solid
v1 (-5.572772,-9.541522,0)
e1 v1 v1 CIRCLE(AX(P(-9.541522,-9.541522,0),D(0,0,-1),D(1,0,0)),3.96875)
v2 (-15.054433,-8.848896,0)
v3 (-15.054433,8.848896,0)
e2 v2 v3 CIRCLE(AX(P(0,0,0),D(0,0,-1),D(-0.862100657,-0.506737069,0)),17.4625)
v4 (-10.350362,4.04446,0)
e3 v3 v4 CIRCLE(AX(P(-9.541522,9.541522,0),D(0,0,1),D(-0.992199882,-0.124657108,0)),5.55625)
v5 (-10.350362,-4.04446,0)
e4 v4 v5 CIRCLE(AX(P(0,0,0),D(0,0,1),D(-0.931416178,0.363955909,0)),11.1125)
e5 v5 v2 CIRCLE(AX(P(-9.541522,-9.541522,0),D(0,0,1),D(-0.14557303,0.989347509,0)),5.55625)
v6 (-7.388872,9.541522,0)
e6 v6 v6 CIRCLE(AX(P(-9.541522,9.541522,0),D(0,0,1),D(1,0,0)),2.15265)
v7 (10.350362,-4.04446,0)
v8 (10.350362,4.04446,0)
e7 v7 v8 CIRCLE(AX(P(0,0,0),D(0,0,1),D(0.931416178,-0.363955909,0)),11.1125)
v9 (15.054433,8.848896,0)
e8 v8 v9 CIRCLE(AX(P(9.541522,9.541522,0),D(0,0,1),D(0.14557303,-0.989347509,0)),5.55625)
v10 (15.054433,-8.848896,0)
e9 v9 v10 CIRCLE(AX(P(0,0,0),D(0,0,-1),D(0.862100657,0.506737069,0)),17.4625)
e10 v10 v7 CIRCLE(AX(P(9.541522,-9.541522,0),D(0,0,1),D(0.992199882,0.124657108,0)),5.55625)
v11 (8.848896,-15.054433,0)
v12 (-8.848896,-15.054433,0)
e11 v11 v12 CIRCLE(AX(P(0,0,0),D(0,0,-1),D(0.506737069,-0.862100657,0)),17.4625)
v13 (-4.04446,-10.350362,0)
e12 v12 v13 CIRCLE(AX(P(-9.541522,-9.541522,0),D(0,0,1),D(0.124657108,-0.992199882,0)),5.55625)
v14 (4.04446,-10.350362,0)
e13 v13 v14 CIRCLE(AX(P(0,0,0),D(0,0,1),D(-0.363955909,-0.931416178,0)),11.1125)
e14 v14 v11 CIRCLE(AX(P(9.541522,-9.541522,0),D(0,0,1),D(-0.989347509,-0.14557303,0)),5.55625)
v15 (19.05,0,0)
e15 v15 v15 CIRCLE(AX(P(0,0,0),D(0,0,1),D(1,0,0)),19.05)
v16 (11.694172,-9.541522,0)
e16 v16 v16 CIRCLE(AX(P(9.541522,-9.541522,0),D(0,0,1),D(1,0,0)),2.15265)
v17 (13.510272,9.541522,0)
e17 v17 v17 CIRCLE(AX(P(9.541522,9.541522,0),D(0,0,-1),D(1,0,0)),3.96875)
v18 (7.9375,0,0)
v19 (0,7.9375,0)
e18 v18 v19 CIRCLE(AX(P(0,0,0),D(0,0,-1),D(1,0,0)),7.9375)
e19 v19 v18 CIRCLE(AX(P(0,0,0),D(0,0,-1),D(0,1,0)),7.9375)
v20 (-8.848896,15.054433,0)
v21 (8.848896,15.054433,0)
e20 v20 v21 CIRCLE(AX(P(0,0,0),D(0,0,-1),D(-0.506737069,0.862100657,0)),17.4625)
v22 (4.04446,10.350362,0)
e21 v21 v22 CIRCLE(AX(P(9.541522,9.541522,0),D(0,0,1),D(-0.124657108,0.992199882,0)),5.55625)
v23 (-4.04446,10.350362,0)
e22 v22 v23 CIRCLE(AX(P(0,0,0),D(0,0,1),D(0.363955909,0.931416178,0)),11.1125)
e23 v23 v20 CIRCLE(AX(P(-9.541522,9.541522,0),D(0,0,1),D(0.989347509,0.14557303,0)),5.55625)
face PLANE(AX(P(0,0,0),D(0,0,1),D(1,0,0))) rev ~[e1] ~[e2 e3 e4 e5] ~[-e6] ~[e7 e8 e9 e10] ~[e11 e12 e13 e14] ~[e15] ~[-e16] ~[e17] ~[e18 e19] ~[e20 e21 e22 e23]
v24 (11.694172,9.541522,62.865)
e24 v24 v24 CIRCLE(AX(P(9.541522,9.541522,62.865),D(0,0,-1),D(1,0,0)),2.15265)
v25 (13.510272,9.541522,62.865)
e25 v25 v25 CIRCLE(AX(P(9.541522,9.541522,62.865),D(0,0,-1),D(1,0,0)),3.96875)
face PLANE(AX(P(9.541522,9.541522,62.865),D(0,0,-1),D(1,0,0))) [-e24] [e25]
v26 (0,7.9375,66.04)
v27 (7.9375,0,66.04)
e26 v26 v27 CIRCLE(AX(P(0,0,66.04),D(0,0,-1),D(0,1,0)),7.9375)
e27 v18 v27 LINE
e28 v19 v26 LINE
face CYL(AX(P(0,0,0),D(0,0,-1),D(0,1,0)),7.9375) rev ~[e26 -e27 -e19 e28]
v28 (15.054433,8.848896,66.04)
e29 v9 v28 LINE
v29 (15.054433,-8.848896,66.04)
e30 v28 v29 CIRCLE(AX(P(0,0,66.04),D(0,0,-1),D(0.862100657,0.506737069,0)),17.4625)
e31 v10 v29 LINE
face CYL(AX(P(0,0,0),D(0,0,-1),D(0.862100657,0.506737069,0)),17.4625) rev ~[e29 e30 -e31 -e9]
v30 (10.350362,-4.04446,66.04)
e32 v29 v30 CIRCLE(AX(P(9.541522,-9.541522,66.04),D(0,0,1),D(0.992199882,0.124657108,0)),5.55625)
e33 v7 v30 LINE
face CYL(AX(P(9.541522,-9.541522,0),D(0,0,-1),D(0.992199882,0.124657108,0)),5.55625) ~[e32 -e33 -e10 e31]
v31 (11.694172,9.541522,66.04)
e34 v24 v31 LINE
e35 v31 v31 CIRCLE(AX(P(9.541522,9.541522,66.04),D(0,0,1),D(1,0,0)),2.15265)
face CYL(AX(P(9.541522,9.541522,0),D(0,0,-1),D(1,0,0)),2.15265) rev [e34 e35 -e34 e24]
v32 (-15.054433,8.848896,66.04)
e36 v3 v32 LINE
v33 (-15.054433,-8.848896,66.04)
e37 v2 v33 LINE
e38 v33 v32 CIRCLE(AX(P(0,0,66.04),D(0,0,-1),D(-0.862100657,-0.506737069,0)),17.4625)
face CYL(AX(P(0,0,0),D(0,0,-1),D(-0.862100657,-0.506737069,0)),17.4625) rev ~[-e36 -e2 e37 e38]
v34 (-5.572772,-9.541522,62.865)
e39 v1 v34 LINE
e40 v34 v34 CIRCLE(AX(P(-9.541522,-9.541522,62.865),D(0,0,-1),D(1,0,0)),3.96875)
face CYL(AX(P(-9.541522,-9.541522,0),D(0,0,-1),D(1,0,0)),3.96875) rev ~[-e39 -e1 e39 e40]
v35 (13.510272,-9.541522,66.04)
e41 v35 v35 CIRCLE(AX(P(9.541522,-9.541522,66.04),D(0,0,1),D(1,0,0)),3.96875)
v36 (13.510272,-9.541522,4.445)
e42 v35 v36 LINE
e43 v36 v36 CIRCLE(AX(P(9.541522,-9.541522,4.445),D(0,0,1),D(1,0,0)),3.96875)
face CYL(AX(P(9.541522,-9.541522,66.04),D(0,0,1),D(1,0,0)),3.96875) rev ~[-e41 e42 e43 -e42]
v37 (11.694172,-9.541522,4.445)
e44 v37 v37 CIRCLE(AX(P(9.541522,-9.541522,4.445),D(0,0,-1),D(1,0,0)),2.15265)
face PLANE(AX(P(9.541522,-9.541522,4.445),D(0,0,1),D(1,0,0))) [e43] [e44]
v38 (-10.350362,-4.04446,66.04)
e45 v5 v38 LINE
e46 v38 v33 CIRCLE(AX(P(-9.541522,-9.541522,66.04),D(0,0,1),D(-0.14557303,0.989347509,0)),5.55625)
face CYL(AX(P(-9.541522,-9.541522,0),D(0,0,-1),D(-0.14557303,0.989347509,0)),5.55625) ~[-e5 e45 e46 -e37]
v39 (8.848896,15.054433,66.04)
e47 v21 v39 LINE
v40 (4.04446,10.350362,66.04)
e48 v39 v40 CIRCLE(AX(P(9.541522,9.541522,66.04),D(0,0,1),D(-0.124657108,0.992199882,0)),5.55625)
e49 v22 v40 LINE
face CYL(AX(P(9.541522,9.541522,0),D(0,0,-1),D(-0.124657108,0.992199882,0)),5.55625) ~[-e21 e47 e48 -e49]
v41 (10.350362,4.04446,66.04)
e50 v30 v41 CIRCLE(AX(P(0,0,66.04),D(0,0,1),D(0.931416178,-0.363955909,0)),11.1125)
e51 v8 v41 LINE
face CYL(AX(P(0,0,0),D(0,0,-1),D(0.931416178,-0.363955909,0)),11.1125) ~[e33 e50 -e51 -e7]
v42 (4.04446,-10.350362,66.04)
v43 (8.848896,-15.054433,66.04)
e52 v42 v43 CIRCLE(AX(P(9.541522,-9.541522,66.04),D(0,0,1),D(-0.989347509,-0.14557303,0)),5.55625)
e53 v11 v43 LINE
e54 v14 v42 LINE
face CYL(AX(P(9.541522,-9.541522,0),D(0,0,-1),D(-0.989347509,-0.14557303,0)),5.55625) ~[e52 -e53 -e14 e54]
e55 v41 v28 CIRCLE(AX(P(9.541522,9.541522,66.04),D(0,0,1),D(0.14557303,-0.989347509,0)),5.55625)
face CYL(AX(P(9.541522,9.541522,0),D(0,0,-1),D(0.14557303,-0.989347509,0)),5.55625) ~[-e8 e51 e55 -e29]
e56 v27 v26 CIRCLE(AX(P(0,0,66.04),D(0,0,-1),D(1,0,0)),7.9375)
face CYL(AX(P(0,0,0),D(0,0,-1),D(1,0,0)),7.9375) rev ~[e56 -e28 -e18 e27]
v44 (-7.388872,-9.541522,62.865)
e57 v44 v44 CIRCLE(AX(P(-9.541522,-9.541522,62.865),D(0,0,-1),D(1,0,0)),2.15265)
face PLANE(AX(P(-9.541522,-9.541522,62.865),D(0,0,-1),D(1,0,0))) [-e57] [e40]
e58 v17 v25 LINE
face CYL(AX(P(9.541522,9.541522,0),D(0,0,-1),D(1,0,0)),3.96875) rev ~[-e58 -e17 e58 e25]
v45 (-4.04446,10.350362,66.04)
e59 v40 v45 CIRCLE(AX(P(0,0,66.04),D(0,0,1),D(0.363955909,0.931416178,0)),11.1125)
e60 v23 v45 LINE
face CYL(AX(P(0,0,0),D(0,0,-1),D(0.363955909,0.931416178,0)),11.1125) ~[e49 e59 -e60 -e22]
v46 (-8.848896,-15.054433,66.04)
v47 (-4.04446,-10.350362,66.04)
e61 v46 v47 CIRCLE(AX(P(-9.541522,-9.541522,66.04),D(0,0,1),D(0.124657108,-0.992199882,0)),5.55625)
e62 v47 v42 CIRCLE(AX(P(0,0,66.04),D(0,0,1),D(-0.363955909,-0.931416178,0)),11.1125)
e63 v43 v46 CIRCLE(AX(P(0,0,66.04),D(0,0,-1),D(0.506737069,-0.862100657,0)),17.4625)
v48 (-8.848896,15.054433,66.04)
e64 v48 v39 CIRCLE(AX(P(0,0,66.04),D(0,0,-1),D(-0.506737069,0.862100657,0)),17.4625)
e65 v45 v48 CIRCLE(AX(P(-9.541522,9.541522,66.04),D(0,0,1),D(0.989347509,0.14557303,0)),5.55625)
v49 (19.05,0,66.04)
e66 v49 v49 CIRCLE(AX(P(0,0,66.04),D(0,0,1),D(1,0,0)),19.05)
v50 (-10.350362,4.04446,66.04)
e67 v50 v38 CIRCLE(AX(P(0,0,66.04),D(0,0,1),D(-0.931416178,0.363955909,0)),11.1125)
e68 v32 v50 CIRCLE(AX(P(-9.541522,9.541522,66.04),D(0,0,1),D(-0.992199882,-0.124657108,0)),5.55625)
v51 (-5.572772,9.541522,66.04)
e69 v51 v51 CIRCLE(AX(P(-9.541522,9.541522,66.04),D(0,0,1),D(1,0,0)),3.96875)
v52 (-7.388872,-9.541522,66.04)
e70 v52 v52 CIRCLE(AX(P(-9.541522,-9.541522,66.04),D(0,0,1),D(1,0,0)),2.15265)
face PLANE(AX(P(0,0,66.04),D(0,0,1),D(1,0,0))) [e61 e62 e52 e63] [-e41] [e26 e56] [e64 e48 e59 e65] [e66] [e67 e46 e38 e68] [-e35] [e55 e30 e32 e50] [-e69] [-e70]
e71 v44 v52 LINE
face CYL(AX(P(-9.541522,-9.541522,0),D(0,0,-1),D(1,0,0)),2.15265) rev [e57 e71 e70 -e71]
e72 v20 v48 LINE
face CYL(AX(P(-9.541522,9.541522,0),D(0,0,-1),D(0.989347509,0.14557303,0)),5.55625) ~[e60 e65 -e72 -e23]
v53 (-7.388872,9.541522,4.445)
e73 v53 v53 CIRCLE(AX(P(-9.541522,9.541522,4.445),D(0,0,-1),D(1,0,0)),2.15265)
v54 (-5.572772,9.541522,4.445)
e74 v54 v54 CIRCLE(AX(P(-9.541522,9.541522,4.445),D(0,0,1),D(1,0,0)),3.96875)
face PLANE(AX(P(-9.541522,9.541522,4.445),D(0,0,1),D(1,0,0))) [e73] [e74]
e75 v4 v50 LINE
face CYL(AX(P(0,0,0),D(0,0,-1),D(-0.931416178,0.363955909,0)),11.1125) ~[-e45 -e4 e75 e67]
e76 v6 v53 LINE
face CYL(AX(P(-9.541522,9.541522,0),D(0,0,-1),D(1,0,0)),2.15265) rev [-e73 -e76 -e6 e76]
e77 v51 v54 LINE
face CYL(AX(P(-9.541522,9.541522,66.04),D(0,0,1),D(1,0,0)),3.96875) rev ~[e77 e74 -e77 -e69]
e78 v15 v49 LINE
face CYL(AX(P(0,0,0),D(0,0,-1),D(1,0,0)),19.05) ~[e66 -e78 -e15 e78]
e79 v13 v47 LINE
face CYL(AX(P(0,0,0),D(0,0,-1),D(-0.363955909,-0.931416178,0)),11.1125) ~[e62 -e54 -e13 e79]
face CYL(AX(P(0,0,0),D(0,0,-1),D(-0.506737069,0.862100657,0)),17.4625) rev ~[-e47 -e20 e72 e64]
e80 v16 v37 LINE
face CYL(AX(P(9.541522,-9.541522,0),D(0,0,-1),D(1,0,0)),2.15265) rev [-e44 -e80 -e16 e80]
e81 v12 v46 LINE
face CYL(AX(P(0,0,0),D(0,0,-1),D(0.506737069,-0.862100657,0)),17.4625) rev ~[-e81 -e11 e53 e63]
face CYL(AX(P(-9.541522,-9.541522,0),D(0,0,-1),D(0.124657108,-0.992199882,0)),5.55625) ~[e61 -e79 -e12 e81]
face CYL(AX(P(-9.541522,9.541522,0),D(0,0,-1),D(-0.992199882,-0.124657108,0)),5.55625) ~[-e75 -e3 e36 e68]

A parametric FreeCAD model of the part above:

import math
import FreeCAD as App
import Part
import Sketcher

V = App.Vector
Q = App.Units.Quantity

doc = App.newDocument("Part")
params = doc.addObject("Spreadsheet::Sheet", "Params")
for row, (alias, value) in enumerate([
    ("sketch1_diameter", "1.5 in"),
    ("sketch1_radius", "0.3125 in"),
    ("pad1_length", "2.6 in"),
    ("sketch2_diameter", "0.3125 in"),
    ("pocket1_length", "2.475 in"),
    ("sketch3_diameter", "0.3125 in"),
    ("pocket2_length", "2.425 in"),
    ("sketch4_radius", "0.21875 in"),
    ("sketch4_radius2", "0.4375 in"),
    ("sketch4_radius3", "0.6875 in"),
], start=1):
    params.set(f"A{row}", alias)
    params.set(f"B{row}", "=" + value)
    params.setAlias(f"B{row}", alias)

body = doc.addObject("PartDesign::Body", "Body")

# Sketch on XY plane
sketch1 = body.newObject("Sketcher::SketchObject", "Sketch")
sketch1.AttachmentSupport = (doc.getObject("XY_Plane"), [""])
sketch1.MapMode = "FlatFace"
sketch1.addGeometry([
    Part.Circle(V(0, 0, 0), V(0, 0, 1), 19.1),  # 0
    Part.Circle(V(-9.5, -9.5, 0), V(0, 0, 1), 2.2),  # 1
    Part.ArcOfCircle(Part.Circle(V(0, 0, 0), V(0, 0, 1), 7.9), math.radians(90), math.radians(360)),  # 2
    Part.ArcOfCircle(Part.Circle(V(0, 0, 0), V(0, 0, 1), 7.9), math.radians(0), math.radians(90)),  # 3
    Part.Circle(V(9.5, -9.5, 0), V(0, 0, 1), 2.2),  # 4
    Part.Circle(V(-9.5, 9.5, 0), V(0, 0, 1), 2.2),  # 5
    Part.Circle(V(9.5, 9.5, 0), V(0, 0, 1), 2.2),  # 6
], False)
sketch1.addConstraint([
    Sketcher.Constraint("Tangent", 2, 1, 3, 2),
    Sketcher.Constraint("Coincident", 3, 1, 2, 2),
    Sketcher.Constraint("Coincident", 0, 3, -1, 1),
    Sketcher.Constraint("Coincident", 2, 3, -1, 1),
    Sketcher.Constraint("Equal", 1, 4),
    Sketcher.Constraint("Equal", 4, 5),
    Sketcher.Constraint("Equal", 5, 6),
    Sketcher.Constraint("Symmetric", 4, 3, 5, 3, -1, 1),
    Sketcher.Constraint("Symmetric", 1, 3, 6, 3, -1, 1),
    Sketcher.Constraint("Symmetric", 1, 3, 4, 3, -2),
    Sketcher.Constraint("PointOnObject", 2, 1, -2),
    Sketcher.Constraint("PointOnObject", 3, 1, -1),
    Sketcher.Constraint("Diameter", 0, Q("1.5 in")),
    Sketcher.Constraint("Radius", 2, Q("0.3125 in")),
    Sketcher.Constraint("Diameter", 1, Q("0.1695 in")),
    Sketcher.Constraint("DistanceX", 1, 3, -1, 1, 9.541522),
    Sketcher.Constraint("DistanceY", 1, 3, -1, 1, 9.541522),
])
sketch1.setExpression("Constraints[12]", "Params.sketch1_diameter")
sketch1.setExpression("Constraints[13]", "Params.sketch1_radius")
pad1 = body.newObject("PartDesign::Pad", "Pad")
pad1.Profile = sketch1
pad1.setExpression("Length", "Params.pad1_length")

# Sketch on XY plane
sketch2 = body.newObject("Sketcher::SketchObject", "Sketch001")
sketch2.AttachmentSupport = (doc.getObject("XY_Plane"), [""])
sketch2.MapMode = "FlatFace"
sketch2.addGeometry([
    Part.Circle(V(9.5, 9.5, 0), V(0, 0, 1), 4),
    Part.Circle(V(-9.5, -9.5, 0), V(0, 0, 1), 4),
], False)
sketch2.addConstraint([
    Sketcher.Constraint("Equal", 0, 1),
    Sketcher.Constraint("Symmetric", 0, 3, 1, 3, -1, 1),
    Sketcher.Constraint("Diameter", 0, Q("0.3125 in")),
    Sketcher.Constraint("DistanceX", -1, 1, 0, 3, 9.541522),
    Sketcher.Constraint("DistanceY", -1, 1, 0, 3, 9.541522),
])
sketch2.setExpression("Constraints[2]", "Params.sketch2_diameter")
pocket1 = body.newObject("PartDesign::Pocket", "Pocket")
pocket1.Profile = sketch2
pocket1.setExpression("Length", "Params.pocket1_length")
pocket1.Reversed = True

# Sketch on XY plane
sketch3 = body.newObject("Sketcher::SketchObject", "Sketch002")
sketch3.AttachmentSupport = (doc.getObject("XY_Plane"), [""])
sketch3.MapMode = "FlatFace"
sketch3.AttachmentOffset = App.Placement(V(0, 0, 2.6 * 25.4), App.Rotation())
sketch3.addGeometry([
    Part.Circle(V(-9.5, 9.5, 0), V(0, 0, 1), 4),
    Part.Circle(V(9.5, -9.5, 0), V(0, 0, 1), 4),
], False)
sketch3.addConstraint([
    Sketcher.Constraint("Equal", 0, 1),
    Sketcher.Constraint("Symmetric", 0, 3, 1, 3, -1, 1),
    Sketcher.Constraint("Diameter", 0, Q("0.3125 in")),
    Sketcher.Constraint("DistanceX", 0, 3, -1, 1, 9.541522),
    Sketcher.Constraint("DistanceY", -1, 1, 0, 3, 9.541522),
])
sketch3.setExpression("Constraints[2]", "Params.sketch3_diameter")
pocket2 = body.newObject("PartDesign::Pocket", "Pocket001")
pocket2.Profile = sketch3
pocket2.setExpression("Length", "Params.pocket2_length")

# Sketch on XY plane
sketch4 = body.newObject("Sketcher::SketchObject", "Sketch003")
sketch4.AttachmentSupport = (doc.getObject("XY_Plane"), [""])
sketch4.MapMode = "FlatFace"
sketch4.addGeometry([
    Part.ArcOfCircle(Part.Circle(V(10, 10, 0), V(0, 0, 1), 6), math.radians(97), math.radians(172)),
    Part.ArcOfCircle(Part.Circle(V(0, 0, 0), V(0, 0, 1), 11), math.radians(69), math.radians(111)),
    Part.ArcOfCircle(Part.Circle(V(-10, 10, 0), V(0, 0, 1), 6), math.radians(8), math.radians(83)),
    Part.ArcOfCircle(Part.Circle(V(0, 0, 0), V(0, 0, 1), 17), math.radians(60), math.radians(120)),
], False)
sketch4.addConstraint([
    Sketcher.Constraint("Coincident", 0, 2, 1, 1),
    Sketcher.Constraint("Coincident", 1, 2, 2, 1),
    Sketcher.Constraint("Coincident", 2, 2, 3, 2),
    Sketcher.Constraint("Coincident", 3, 1, 0, 1),
    Sketcher.Constraint("Coincident", 1, 3, -1, 1),
    Sketcher.Constraint("Coincident", 3, 3, -1, 1),
    Sketcher.Constraint("Equal", 0, 2),
    Sketcher.Constraint("Symmetric", 0, 3, 2, 3, -2),
    Sketcher.Constraint("Radius", 0, Q("0.21875 in")),
    Sketcher.Constraint("Radius", 1, Q("0.4375 in")),
    Sketcher.Constraint("Radius", 3, Q("0.6875 in")),
    Sketcher.Constraint("DistanceX", -1, 1, 0, 2, 4.04446),
    Sketcher.Constraint("DistanceY", 0, 3, 0, 2, 0.80884),
])
sketch4.setExpression("Constraints[8]", "Params.sketch4_radius")
sketch4.setExpression("Constraints[9]", "Params.sketch4_radius2")
sketch4.setExpression("Constraints[10]", "Params.sketch4_radius3")
pocket3 = body.newObject("PartDesign::Pocket", "Pocket002")
pocket3.Profile = sketch4
pocket3.Type = "ThroughAll"
pocket3.Reversed = True
doc.recompute()

polarpattern = body.newObject("PartDesign::PolarPattern", "PolarPattern")
polarpattern.Originals = [pocket3]
polarpattern.Axis = (doc.getObject("Z_Axis"), [""])
polarpattern.Angle = 360
polarpattern.Occurrences = 4
body.Tip = polarpattern

doc.recompute()
